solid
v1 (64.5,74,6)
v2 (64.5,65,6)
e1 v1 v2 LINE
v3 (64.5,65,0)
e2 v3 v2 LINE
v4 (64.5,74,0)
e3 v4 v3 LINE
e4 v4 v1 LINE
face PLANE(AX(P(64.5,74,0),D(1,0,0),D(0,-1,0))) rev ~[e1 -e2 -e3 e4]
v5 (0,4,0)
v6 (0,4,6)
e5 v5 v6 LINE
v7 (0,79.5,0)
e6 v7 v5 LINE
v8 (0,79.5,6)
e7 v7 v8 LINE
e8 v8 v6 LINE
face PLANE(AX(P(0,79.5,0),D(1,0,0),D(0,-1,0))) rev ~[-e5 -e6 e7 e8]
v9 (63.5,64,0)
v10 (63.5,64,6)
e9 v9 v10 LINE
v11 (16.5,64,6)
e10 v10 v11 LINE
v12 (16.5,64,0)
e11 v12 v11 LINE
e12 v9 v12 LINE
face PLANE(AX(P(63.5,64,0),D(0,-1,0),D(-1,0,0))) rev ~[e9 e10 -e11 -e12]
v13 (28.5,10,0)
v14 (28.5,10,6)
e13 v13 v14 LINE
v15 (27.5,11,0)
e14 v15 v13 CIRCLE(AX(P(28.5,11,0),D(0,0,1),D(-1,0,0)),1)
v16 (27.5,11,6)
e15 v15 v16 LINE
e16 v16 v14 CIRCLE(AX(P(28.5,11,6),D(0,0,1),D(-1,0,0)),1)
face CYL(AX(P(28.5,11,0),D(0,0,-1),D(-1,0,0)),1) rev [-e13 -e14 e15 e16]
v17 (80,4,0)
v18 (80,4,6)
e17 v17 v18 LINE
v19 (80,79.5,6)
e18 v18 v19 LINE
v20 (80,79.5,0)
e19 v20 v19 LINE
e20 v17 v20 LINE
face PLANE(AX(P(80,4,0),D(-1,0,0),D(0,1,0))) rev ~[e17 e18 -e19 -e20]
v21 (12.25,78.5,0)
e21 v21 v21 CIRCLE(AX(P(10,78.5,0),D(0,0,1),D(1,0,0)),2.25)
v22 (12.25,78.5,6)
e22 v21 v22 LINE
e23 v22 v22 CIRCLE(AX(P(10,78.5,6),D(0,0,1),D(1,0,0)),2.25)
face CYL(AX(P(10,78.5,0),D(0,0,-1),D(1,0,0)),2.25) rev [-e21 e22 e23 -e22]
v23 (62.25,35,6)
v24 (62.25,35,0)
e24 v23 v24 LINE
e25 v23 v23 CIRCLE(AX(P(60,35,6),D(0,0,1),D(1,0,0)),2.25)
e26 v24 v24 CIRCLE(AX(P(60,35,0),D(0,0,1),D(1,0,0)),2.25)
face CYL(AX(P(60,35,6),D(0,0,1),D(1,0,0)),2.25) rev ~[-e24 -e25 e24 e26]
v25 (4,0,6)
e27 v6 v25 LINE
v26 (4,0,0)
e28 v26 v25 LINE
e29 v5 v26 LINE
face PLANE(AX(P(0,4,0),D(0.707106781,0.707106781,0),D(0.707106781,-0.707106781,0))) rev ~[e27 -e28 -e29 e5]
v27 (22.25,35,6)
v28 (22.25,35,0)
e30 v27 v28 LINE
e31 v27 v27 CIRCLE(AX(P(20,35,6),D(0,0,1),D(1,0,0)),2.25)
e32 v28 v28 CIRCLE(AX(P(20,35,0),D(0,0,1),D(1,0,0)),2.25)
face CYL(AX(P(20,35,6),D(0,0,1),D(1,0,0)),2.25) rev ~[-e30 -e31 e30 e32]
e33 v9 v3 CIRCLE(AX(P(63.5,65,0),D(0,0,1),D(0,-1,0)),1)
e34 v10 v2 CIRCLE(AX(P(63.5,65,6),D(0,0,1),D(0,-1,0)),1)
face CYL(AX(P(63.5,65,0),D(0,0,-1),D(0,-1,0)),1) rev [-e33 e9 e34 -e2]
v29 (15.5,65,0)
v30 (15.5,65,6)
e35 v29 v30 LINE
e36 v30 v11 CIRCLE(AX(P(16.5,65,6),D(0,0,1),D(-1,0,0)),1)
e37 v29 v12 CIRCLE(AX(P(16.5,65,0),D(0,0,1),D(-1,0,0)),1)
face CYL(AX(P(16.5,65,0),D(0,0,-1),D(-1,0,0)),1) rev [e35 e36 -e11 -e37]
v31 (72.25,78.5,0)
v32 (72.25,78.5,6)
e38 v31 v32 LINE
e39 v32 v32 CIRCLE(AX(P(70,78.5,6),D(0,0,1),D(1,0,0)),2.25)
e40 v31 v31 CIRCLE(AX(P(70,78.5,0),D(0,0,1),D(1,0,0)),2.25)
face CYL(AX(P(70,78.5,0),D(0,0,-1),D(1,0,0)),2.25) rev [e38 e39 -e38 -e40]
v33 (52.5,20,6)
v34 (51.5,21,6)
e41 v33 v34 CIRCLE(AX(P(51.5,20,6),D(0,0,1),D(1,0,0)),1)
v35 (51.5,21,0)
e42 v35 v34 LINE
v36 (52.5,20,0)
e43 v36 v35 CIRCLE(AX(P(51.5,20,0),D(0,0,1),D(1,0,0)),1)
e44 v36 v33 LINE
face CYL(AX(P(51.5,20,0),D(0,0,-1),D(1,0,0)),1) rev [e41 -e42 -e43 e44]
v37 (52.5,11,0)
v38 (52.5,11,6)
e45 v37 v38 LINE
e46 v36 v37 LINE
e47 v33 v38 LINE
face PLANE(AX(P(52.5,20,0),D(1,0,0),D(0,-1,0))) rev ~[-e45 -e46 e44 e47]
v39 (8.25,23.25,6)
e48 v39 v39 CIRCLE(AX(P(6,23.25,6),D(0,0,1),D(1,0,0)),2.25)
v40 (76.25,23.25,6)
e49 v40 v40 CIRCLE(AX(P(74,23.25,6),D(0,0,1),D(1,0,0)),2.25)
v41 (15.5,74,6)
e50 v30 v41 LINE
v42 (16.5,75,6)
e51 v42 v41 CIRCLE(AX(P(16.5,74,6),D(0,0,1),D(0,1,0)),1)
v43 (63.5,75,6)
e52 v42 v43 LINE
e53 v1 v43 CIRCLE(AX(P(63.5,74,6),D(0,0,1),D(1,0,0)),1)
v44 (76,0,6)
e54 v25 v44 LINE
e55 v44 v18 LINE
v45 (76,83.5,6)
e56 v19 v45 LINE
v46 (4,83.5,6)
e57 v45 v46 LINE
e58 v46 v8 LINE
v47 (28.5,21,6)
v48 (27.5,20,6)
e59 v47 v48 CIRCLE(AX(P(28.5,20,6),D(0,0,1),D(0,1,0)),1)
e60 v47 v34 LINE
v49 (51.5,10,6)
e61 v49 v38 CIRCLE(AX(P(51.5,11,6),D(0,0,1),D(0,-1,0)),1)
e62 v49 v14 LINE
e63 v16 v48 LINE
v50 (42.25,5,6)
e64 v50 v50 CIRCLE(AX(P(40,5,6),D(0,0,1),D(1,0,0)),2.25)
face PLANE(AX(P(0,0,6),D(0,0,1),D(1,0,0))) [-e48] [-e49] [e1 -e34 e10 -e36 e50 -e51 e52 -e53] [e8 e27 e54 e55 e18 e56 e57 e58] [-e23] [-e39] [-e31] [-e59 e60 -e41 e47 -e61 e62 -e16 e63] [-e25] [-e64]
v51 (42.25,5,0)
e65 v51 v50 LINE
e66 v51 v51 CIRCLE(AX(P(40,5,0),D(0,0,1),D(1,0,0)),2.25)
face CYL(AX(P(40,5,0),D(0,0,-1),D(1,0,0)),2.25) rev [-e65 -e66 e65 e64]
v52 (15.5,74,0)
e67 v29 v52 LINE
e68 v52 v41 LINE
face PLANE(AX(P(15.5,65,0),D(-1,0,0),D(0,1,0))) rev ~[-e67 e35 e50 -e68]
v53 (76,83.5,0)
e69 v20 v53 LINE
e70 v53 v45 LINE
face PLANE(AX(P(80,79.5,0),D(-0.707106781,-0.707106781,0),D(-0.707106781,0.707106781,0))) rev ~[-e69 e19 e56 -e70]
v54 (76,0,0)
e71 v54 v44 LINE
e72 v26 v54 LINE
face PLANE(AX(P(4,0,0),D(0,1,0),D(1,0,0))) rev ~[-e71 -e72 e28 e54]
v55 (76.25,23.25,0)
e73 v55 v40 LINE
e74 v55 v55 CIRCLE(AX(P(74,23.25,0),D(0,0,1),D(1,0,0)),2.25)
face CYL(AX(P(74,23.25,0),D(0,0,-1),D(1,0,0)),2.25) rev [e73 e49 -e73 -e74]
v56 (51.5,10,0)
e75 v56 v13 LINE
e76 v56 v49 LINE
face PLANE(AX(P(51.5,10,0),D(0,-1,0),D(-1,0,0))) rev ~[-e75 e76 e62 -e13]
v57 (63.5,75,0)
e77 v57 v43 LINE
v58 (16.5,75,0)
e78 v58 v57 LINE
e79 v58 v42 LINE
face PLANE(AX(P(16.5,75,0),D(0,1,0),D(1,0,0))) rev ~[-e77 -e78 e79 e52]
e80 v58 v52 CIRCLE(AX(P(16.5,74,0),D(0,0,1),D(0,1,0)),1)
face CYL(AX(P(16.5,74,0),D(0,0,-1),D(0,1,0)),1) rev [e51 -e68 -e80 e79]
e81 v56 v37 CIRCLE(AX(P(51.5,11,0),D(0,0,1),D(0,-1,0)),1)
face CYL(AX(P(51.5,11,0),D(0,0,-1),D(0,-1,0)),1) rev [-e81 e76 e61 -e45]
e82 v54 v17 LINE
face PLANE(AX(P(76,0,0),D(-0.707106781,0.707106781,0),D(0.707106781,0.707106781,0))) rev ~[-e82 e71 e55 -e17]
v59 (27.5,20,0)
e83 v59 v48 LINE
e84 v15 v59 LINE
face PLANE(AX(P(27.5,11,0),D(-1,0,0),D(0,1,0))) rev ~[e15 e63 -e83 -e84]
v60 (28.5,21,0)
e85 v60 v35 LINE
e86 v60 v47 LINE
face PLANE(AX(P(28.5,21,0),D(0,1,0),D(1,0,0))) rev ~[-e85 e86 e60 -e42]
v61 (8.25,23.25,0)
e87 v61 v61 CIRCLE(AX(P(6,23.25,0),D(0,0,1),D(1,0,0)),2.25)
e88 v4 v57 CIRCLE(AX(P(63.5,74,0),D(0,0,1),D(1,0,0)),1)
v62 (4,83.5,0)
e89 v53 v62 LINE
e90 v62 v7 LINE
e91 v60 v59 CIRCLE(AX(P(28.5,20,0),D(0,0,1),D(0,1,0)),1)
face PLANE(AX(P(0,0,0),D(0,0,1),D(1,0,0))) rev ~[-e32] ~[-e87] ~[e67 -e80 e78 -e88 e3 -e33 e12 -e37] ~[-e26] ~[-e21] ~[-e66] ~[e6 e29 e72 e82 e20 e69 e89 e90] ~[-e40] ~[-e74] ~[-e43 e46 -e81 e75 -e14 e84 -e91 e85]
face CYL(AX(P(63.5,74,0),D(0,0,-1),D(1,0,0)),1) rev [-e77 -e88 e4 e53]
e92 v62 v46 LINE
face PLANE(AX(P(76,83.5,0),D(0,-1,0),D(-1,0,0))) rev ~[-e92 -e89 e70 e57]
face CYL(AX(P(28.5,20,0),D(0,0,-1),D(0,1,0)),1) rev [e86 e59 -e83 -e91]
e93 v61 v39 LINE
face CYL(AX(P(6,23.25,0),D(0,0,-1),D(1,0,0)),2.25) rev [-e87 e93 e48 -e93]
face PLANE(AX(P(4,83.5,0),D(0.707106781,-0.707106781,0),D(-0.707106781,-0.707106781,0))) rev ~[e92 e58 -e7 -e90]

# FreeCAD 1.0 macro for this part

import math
import FreeCAD as App
import Part
import Sketcher

V = App.Vector

doc = App.newDocument("Part")
body = doc.addObject("PartDesign::Body", "Body")

# Sketch on XY plane
sketch1 = doc.addObject("Sketcher::SketchObject", "Sketch")
body.addObject(sketch1)
sketch1.AttachmentSupport = (doc.XY_Plane, [""])
sketch1.MapMode = "FlatFace"
sketch1.addGeometry(Part.LineSegment(V(0, 4, 0), V(4, 0, 0)), False)
sketch1.addGeometry(Part.LineSegment(V(4, 0, 0), V(76, 0, 0)), False)
sketch1.addGeometry(Part.LineSegment(V(76, 0, 0), V(80, 4, 0)), False)
sketch1.addGeometry(Part.LineSegment(V(80, 4, 0), V(80, 79.5, 0)), False)
sketch1.addGeometry(Part.LineSegment(V(80, 79.5, 0), V(76, 83.5, 0)), False)
sketch1.addGeometry(Part.LineSegment(V(76, 83.5, 0), V(4, 83.5, 0)), False)
sketch1.addGeometry(Part.LineSegment(V(4, 83.5, 0), V(0, 79.5, 0)), False)
sketch1.addGeometry(Part.LineSegment(V(0, 79.5, 0), V(0, 4, 0)), False)
sketch1.addGeometry(Part.Circle(V(6, 23.25, 0), V(0, 0, 1), 2.25), False)
sketch1.addGeometry(Part.Circle(V(40, 5, 0), V(0, 0, 1), 2.25), False)
sketch1.addGeometry(Part.ArcOfCircle(Part.Circle(V(28.5, 20, 0), V(0, 0, 1), 1), math.radians(90), math.radians(180)), False)
sketch1.addGeometry(Part.LineSegment(V(28.5, 21, 0), V(51.5, 21, 0)), False)
sketch1.addGeometry(Part.ArcOfCircle(Part.Circle(V(51.5, 20, 0), V(0, 0, 1), 1), math.radians(0), math.radians(90)), False)
sketch1.addGeometry(Part.LineSegment(V(52.5, 20, 0), V(52.5, 11, 0)), False)
sketch1.addGeometry(Part.ArcOfCircle(Part.Circle(V(51.5, 11, 0), V(0, 0, 1), 1), math.radians(-90), math.radians(0)), False)
sketch1.addGeometry(Part.LineSegment(V(51.5, 10, 0), V(28.5, 10, 0)), False)
sketch1.addGeometry(Part.ArcOfCircle(Part.Circle(V(28.5, 11, 0), V(0, 0, 1), 1), math.radians(180), math.radians(270)), False)
sketch1.addGeometry(Part.LineSegment(V(27.5, 11, 0), V(27.5, 20, 0)), False)
sketch1.addGeometry(Part.Circle(V(74, 23.25, 0), V(0, 0, 1), 2.25), False)
sketch1.addGeometry(Part.Circle(V(10, 78.5, 0), V(0, 0, 1), 2.25), False)
sketch1.addGeometry(Part.ArcOfCircle(Part.Circle(V(16.5, 74, 0), V(0, 0, 1), 1), math.radians(90), math.radians(180)), False)
sketch1.addGeometry(Part.LineSegment(V(16.5, 75, 0), V(63.5, 75, 0)), False)
sketch1.addGeometry(Part.ArcOfCircle(Part.Circle(V(63.5, 74, 0), V(0, 0, 1), 1), math.radians(0), math.radians(90)), False)
sketch1.addGeometry(Part.LineSegment(V(64.5, 74, 0), V(64.5, 65, 0)), False)
sketch1.addGeometry(Part.ArcOfCircle(Part.Circle(V(63.5, 65, 0), V(0, 0, 1), 1), math.radians(-90), math.radians(0)), False)
sketch1.addGeometry(Part.LineSegment(V(63.5, 64, 0), V(16.5, 64, 0)), False)
sketch1.addGeometry(Part.ArcOfCircle(Part.Circle(V(16.5, 65, 0), V(0, 0, 1), 1), math.radians(180), math.radians(270)), False)
sketch1.addGeometry(Part.LineSegment(V(15.5, 65, 0), V(15.5, 74, 0)), False)
sketch1.addGeometry(Part.Circle(V(70, 78.5, 0), V(0, 0, 1), 2.25), False)
sketch1.addConstraint(Sketcher.Constraint("Coincident", 0, 2, 1, 1))
sketch1.addConstraint(Sketcher.Constraint("Coincident", 1, 2, 2, 1))
sketch1.addConstraint(Sketcher.Constraint("Coincident", 2, 2, 3, 1))
sketch1.addConstraint(Sketcher.Constraint("Coincident", 3, 2, 4, 1))
sketch1.addConstraint(Sketcher.Constraint("Coincident", 4, 2, 5, 1))
sketch1.addConstraint(Sketcher.Constraint("Coincident", 5, 2, 6, 1))
sketch1.addConstraint(Sketcher.Constraint("Coincident", 6, 2, 7, 1))
sketch1.addConstraint(Sketcher.Constraint("Coincident", 7, 2, 0, 1))
sketch1.addConstraint(Sketcher.Constraint("Tangent", 10, 1, 11, 1))
sketch1.addConstraint(Sketcher.Constraint("Tangent", 11, 2, 12, 2))
sketch1.addConstraint(Sketcher.Constraint("Tangent", 12, 1, 13, 1))
sketch1.addConstraint(Sketcher.Constraint("Tangent", 13, 2, 14, 2))
sketch1.addConstraint(Sketcher.Constraint("Tangent", 14, 1, 15, 1))
sketch1.addConstraint(Sketcher.Constraint("Tangent", 15, 2, 16, 2))
sketch1.addConstraint(Sketcher.Constraint("Tangent", 16, 1, 17, 1))
sketch1.addConstraint(Sketcher.Constraint("Tangent", 17, 2, 10, 2))
sketch1.addConstraint(Sketcher.Constraint("Tangent", 20, 1, 21, 1))
sketch1.addConstraint(Sketcher.Constraint("Tangent", 21, 2, 22, 2))
sketch1.addConstraint(Sketcher.Constraint("Tangent", 22, 1, 23, 1))
sketch1.addConstraint(Sketcher.Constraint("Tangent", 23, 2, 24, 2))
sketch1.addConstraint(Sketcher.Constraint("Tangent", 24, 1, 25, 1))
sketch1.addConstraint(Sketcher.Constraint("Tangent", 25, 2, 26, 2))
sketch1.addConstraint(Sketcher.Constraint("Tangent", 26, 1, 27, 1))
sketch1.addConstraint(Sketcher.Constraint("Tangent", 27, 2, 20, 2))
sketch1.addConstraint(Sketcher.Constraint("Horizontal", 1))
sketch1.addConstraint(Sketcher.Constraint("Vertical", 3))
sketch1.addConstraint(Sketcher.Constraint("Horizontal", 5))
sketch1.addConstraint(Sketcher.Constraint("Vertical", 7))
sketch1.addConstraint(Sketcher.Constraint("Horizontal", 11))
sketch1.addConstraint(Sketcher.Constraint("Vertical", 13))
sketch1.addConstraint(Sketcher.Constraint("Horizontal", 15))
sketch1.addConstraint(Sketcher.Constraint("Vertical", 17))
sketch1.addConstraint(Sketcher.Constraint("Horizontal", 21))
sketch1.addConstraint(Sketcher.Constraint("Vertical", 23))
sketch1.addConstraint(Sketcher.Constraint("Horizontal", 25))
sketch1.addConstraint(Sketcher.Constraint("Vertical", 27))
sketch1.addConstraint(Sketcher.Constraint("Equal", 8, 9))
sketch1.addConstraint(Sketcher.Constraint("Equal", 10, 12))
sketch1.addConstraint(Sketcher.Constraint("Equal", 12, 14))
sketch1.addConstraint(Sketcher.Constraint("Equal", 14, 16))
sketch1.addConstraint(Sketcher.Constraint("Equal", 9, 18))
sketch1.addConstraint(Sketcher.Constraint("Equal", 18, 19))
sketch1.addConstraint(Sketcher.Constraint("Equal", 16, 20))
sketch1.addConstraint(Sketcher.Constraint("Equal", 20, 22))
sketch1.addConstraint(Sketcher.Constraint("Equal", 22, 24))
sketch1.addConstraint(Sketcher.Constraint("Equal", 24, 26))
sketch1.addConstraint(Sketcher.Constraint("Equal", 19, 28))
sketch1.addConstraint(Sketcher.Constraint("PointOnObject", 0, 2, -1))
sketch1.addConstraint(Sketcher.Constraint("PointOnObject", 6, 2, -2))
sketch1.addConstraint(Sketcher.Constraint("Perpendicular", 0, 2))
sketch1.addConstraint(Sketcher.Constraint("Perpendicular", 2, 4))
sketch1.addConstraint(Sketcher.Constraint("Perpendicular", 4, 6))
sketch1.addConstraint(Sketcher.Constraint("Horizontal", 8, 3, 18, 3))
sketch1.addConstraint(Sketcher.Constraint("Horizontal", 19, 3, 28, 3))
sketch1.addConstraint(Sketcher.Constraint("Horizontal", 3, 2, 6, 2))
sketch1.addConstraint(Sketcher.Constraint("Horizontal", 2, 2, 7, 2))
sketch1.addConstraint(Sketcher.Constraint("Vertical", 1, 2, 4, 2))
sketch1.addConstraint(Sketcher.Constraint("Vertical", 0, 2, 5, 2))
sketch1.addConstraint(Sketcher.Constraint("Equal", 17, 23))
sketch1.addConstraint(Sketcher.Constraint("Radius", 10, 1.0))
sketch1.addConstraint(Sketcher.Constraint("Diameter", 8, 4.5))
sketch1.addConstraint(Sketcher.Constraint("DistanceX", -1, 1, 8, 3, 6.0))
sketch1.addConstraint(Sketcher.Constraint("DistanceY", -1, 1, 9, 3, 5.0))
sketch1.addConstraint(Sketcher.Constraint("DistanceY", -1, 1, 14, 3, 11.0))
sketch1.addConstraint(Sketcher.Constraint("DistanceX", -1, 1, 19, 3, 10.0))
sketch1.addConstraint(Sketcher.Constraint("DistanceX", -1, 1, 0, 2, 4.0))
sketch1.addConstraint(Sketcher.Constraint("DistanceX", -1, 1, 2, 2, 80.0))
sketch1.addConstraint(Sketcher.Constraint("DistanceY", 10, 3, 20, 3, 54.0))
sketch1.addConstraint(Sketcher.Constraint("DistanceY", 12, 3, 24, 3, 45.0))
sketch1.addConstraint(Sketcher.Constraint("DistanceX", 28, 3, 18, 3, 4.0))
sketch1.addConstraint(Sketcher.Constraint("DistanceX", 18, 3, 2, 2, 6.0))
sketch1.addConstraint(Sketcher.Constraint("DistanceY", 28, 3, 3, 2, 1.0))
sketch1.addConstraint(Sketcher.Constraint("DistanceY", 20, 3, 19, 3, 4.5))
sketch1.addConstraint(Sketcher.Constraint("DistanceX", 11, 1, 11, 2, 23.0))
sketch1.addConstraint(Sketcher.Constraint("DistanceX", 21, 1, 21, 2, 47.0))
sketch1.addConstraint(Sketcher.Constraint("DistanceY", -1, 1, 8, 3, 23.25))
sketch1.addConstraint(Sketcher.Constraint("DistanceX", -1, 1, 9, 3, 40.0))
sketch1.addConstraint(Sketcher.Constraint("DistanceX", 20, 3, 10, 3, 12.0))
sketch1.addConstraint(Sketcher.Constraint("DistanceX", -1, 1, 10, 3, 28.5))
pad1 = doc.addObject("PartDesign::Pad", "Pad")
body.addObject(pad1)
pad1.Profile = sketch1
pad1.Length = 6

# Sketch on XY plane
sketch2 = doc.addObject("Sketcher::SketchObject", "Sketch001")
body.addObject(sketch2)
sketch2.AttachmentSupport = (doc.XY_Plane, [""])
sketch2.MapMode = "FlatFace"
sketch2.AttachmentOffset = App.Placement(V(0, 0, 6), App.Rotation())
sketch2.addGeometry(Part.Circle(V(20, 35, 0), V(0, 0, 1), 2.25), False)
sketch2.addGeometry(Part.Circle(V(60, 35, 0), V(0, 0, 1), 2.25), False)
sketch2.addConstraint(Sketcher.Constraint("Equal", 0, 1))
sketch2.addConstraint(Sketcher.Constraint("Horizontal", 0, 3, 1, 3))
sketch2.addConstraint(Sketcher.Constraint("Diameter", 0, 4.5))
sketch2.addConstraint(Sketcher.Constraint("DistanceY", -1, 1, 0, 3, 35.0))
sketch2.addConstraint(Sketcher.Constraint("DistanceX", 0, 3, 1, 3, 40.0))
sketch2.addConstraint(Sketcher.Constraint("DistanceX", -1, 1, 0, 3, 20.0))
pocket1 = doc.addObject("PartDesign::Pocket", "Pocket")
body.addObject(pocket1)
pocket1.Profile = sketch2
pocket1.Type = "ThroughAll"

doc.recompute()
